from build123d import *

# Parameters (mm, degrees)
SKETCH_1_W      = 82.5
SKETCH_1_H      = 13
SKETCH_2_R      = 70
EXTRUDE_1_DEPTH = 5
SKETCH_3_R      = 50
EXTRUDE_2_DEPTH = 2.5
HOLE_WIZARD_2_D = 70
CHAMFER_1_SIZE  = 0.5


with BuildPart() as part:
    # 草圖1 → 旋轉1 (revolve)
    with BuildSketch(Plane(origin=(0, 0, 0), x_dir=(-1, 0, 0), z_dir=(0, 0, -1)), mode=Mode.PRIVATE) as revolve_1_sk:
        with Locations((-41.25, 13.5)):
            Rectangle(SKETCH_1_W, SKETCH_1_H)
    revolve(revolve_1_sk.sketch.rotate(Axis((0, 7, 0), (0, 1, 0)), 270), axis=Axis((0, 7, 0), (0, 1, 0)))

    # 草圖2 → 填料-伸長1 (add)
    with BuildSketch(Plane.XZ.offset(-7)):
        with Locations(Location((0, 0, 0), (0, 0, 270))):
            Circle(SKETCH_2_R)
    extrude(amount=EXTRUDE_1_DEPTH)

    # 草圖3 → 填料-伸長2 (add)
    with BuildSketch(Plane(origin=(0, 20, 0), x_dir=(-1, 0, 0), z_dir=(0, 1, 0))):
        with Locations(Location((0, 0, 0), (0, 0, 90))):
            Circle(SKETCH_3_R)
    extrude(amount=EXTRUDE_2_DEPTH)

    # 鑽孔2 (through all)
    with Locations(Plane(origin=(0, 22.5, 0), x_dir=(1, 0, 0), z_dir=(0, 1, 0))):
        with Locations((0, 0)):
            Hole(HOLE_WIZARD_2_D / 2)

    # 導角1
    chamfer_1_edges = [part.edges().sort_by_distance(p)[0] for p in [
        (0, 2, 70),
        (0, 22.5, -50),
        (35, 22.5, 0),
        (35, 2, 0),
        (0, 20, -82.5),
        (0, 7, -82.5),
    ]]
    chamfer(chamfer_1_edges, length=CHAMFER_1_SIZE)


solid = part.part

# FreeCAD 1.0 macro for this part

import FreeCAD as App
import Part
import Sketcher

V = App.Vector


def edges_at(feature, points):
    """Names of the edges that pass closest to the given points."""
    edges = feature.Shape.Edges
    near = lambda p: min(range(len(edges)), key=lambda i: edges[i].distToShape(Part.Vertex(*p))[0])
    return sorted({f"Edge{near(p) + 1}" for p in points})

doc = App.newDocument("Part")
params = doc.addObject("Spreadsheet::Sheet", "Params")
for row, (alias, value) in enumerate([
    ("sketch1_height", "13 mm"),
    ("sketch1_width", "82.5 mm"),
    ("revolution_angle", "360 deg"),
    ("sketch2_diameter", "140 mm"),
    ("pad1_length", "5 mm"),
    ("sketch3_diameter", "100 mm"),
    ("pad2_length", "2.5 mm"),
    ("sketch4_diameter", "70 mm"),
    ("hole_diameter", "70 mm"),
    ("chamfer_size", "0.5 mm"),
], start=1):
    params.set(f"A{row}", alias)
    params.set(f"B{row}", "=" + value)
    params.setAlias(f"B{row}", alias)

body = doc.addObject("PartDesign::Body", "Body")

# Sketch on XY plane
sketch1 = body.newObject("Sketcher::SketchObject", "Sketch")
sketch1.AttachmentSupport = (doc.getObject("XY_Plane"), [""])
sketch1.MapMode = "FlatFace"
sketch1.addGeometry(Part.LineSegment(V(82.5, 20, 0), V(82.5, 7, 0)), False)
sketch1.addGeometry(Part.LineSegment(V(82.5, 7, 0), V(0, 7, 0)), False)
sketch1.addGeometry(Part.LineSegment(V(0, 7, 0), V(0, 20, 0)), False)
sketch1.addGeometry(Part.LineSegment(V(0, 20, 0), V(82.5, 20, 0)), False)
sketch1.addConstraint(Sketcher.Constraint("Coincident", 0, 2, 1, 1))
sketch1.addConstraint(Sketcher.Constraint("Coincident", 1, 2, 2, 1))
sketch1.addConstraint(Sketcher.Constraint("Coincident", 2, 2, 3, 1))
sketch1.addConstraint(Sketcher.Constraint("Coincident", 3, 2, 0, 1))
sketch1.addConstraint(Sketcher.Constraint("Vertical", 0))
sketch1.addConstraint(Sketcher.Constraint("Horizontal", 1))
sketch1.addConstraint(Sketcher.Constraint("Vertical", 2))
sketch1.addConstraint(Sketcher.Constraint("Horizontal", 3))
sketch1.addConstraint(Sketcher.Constraint("PointOnObject", 1, 2, -2))
sketch1.addConstraint(Sketcher.Constraint("DistanceY", 0, 2, 0, 1, 13.0))
sketch1.addConstraint(Sketcher.Constraint("DistanceX", 1, 2, 1, 1, 82.5))
sketch1.addConstraint(Sketcher.Constraint("DistanceY", -1, 1, 0, 2, 7.0))
sketch1.setExpression("Constraints[9]", "Params.sketch1_height")
sketch1.setExpression("Constraints[10]", "Params.sketch1_width")
revolution = body.newObject("PartDesign::Revolution", "Revolution")
revolution.Profile = sketch1
revolution.ReferenceAxis = (sketch1, ["V_Axis"])
revolution.setExpression("Angle", "Params.revolution_angle")

# Sketch on XZ plane
sketch2 = body.newObject("Sketcher::SketchObject", "Sketch001")
sketch2.AttachmentSupport = (doc.getObject("XZ_Plane"), [""])
sketch2.MapMode = "FlatFace"
sketch2.AttachmentOffset = App.Placement(V(0, 0, -7), App.Rotation())
sketch2.addGeometry(Part.Circle(V(0, 0, 0), V(0, 0, 1), 70), False)
sketch2.addConstraint(Sketcher.Constraint("Coincident", 0, 3, -1, 1))
sketch2.addConstraint(Sketcher.Constraint("Diameter", 0, 140.0))
sketch2.setExpression("Constraints[1]", "Params.sketch2_diameter")
pad1 = body.newObject("PartDesign::Pad", "Pad")
pad1.Profile = sketch2
pad1.setExpression("Length", "Params.pad1_length")

# Sketch on XZ plane
sketch3 = body.newObject("Sketcher::SketchObject", "Sketch002")
sketch3.AttachmentSupport = (doc.getObject("XZ_Plane"), [""])
sketch3.MapMode = "FlatFace"
sketch3.AttachmentOffset = App.Placement(V(0, 0, -20), App.Rotation())
sketch3.addGeometry(Part.Circle(V(0, 0, 0), V(0, 0, 1), 50), False)
sketch3.addConstraint(Sketcher.Constraint("Coincident", 0, 3, -1, 1))
sketch3.addConstraint(Sketcher.Constraint("Diameter", 0, 100.0))
sketch3.setExpression("Constraints[1]", "Params.sketch3_diameter")
pad2 = body.newObject("PartDesign::Pad", "Pad001")
pad2.Profile = sketch3
pad2.setExpression("Length", "Params.pad2_length")
pad2.Reversed = True

# Sketch on XZ plane
sketch4 = body.newObject("Sketcher::SketchObject", "Sketch003")
sketch4.AttachmentSupport = (doc.getObject("XZ_Plane"), [""])
sketch4.MapMode = "FlatFace"
sketch4.AttachmentOffset = App.Placement(V(0, 0, -22.5), App.Rotation())
sketch4.addGeometry(Part.Circle(V(0, 0, 0), V(0, 0, 1), 35), False)
sketch4.addConstraint(Sketcher.Constraint("Coincident", 0, 3, -1, 1))
sketch4.addConstraint(Sketcher.Constraint("Diameter", 0, 70.0))
sketch4.setExpression("Constraints[1]", "Params.sketch4_diameter")
doc.recompute()
hole = body.newObject("PartDesign::Hole", "Hole")
hole.Profile = sketch4
hole.ThreadType = "None"
hole.setExpression("Diameter", "Params.hole_diameter")
hole.DepthType = "ThroughAll"
hole.Reversed = True
doc.recompute()

chamfer = body.newObject("PartDesign::Chamfer", "Chamfer")
chamfer.Base = (hole, edges_at(hole, [
    (0, 2, 70),
    (0, 22.5, -50),
    (35, 22.5, 0),
    (35, 2, 0),
    (0, 20, -82.5),
    (0, 7, -82.5),
]))
chamfer.setExpression("Size", "Params.chamfer_size")

doc.recompute()
